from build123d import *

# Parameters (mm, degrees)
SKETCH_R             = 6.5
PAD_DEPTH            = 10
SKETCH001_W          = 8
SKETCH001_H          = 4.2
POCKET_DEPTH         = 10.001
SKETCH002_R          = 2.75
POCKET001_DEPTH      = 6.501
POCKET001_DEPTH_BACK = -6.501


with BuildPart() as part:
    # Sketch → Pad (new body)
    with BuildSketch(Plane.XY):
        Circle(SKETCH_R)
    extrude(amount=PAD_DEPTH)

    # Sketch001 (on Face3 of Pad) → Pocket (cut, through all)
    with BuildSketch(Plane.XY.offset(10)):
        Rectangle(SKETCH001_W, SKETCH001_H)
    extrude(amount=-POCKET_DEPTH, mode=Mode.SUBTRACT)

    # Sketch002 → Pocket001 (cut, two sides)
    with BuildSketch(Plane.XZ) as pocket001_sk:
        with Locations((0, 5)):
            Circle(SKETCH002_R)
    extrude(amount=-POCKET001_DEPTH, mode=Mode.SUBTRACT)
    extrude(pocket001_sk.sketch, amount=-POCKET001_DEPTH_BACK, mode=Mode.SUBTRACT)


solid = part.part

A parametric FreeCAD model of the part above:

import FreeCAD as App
import Part
import Sketcher
Q = App.Units.Quantity


def add_polygon(sketch, points):
    """Adds a closed chain of lines whose ends are joined by coincident constraints."""
    first, n = sketch.GeometryCount, len(points)
    for a, b in zip(points, points[1:] + points[:1]):
        sketch.addGeometry(Part.LineSegment(App.Vector(*a, 0), App.Vector(*b, 0)), False)
    for i in range(n):
        sketch.addConstraint(Sketcher.Constraint("Coincident", first + i, 2, first + (i + 1) % n, 1))

doc = App.newDocument("Part")
body = doc.addObject("PartDesign::Body", "Body")

# Sketch on XY plane
sketch1 = body.newObject("Sketcher::SketchObject", "Sketch")
sketch1.AttachmentSupport = (doc.getObject("XY_Plane"), [""])
sketch1.MapMode = "FlatFace"
sketch1.addGeometry(Part.Circle(App.Vector(0, 0, 0), App.Vector(0, 0, 1), 6.5), False)
sketch1.addConstraint([
    Sketcher.Constraint("Coincident", 0, 3, -1, 1),
    Sketcher.Constraint("Diameter", 0, Q("13 mm")),
])
pad1 = body.newObject("PartDesign::Pad", "Pad")
pad1.Profile = sketch1
pad1.Length = 10

# Sketch on XY plane
sketch2 = body.newObject("Sketcher::SketchObject", "Sketch001")
sketch2.AttachmentSupport = (doc.getObject("XY_Plane"), [""])
sketch2.MapMode = "FlatFace"
sketch2.AttachmentOffset = App.Placement(App.Vector(0, 0, 10), App.Rotation())
add_polygon(sketch2, [(-4, 2.1), (-4, -2.1), (4, -2.1), (4, 2.1)])  # lines 0-3
sketch2.addConstraint([
    Sketcher.Constraint("Vertical", 0),
    Sketcher.Constraint("Horizontal", 1),
    Sketcher.Constraint("Vertical", 2),
    Sketcher.Constraint("Horizontal", 3),
    Sketcher.Constraint("Symmetric", 0, 2, 2, 2, -1, 1),
    Sketcher.Constraint("DistanceX", 1, 1, 1, 2, Q("8 mm")),
    Sketcher.Constraint("DistanceY", 0, 2, 0, 1, Q("4.2 mm")),
])
pocket1 = body.newObject("PartDesign::Pocket", "Pocket")
pocket1.Profile = sketch2
pocket1.Type = "ThroughAll"

# Sketch on XZ plane
sketch3 = body.newObject("Sketcher::SketchObject", "Sketch002")
sketch3.AttachmentSupport = (doc.getObject("XZ_Plane"), [""])
sketch3.MapMode = "FlatFace"
sketch3.addGeometry(Part.Circle(App.Vector(0, 5, 0), App.Vector(0, 0, 1), 2.75), False)
sketch3.addConstraint([
    Sketcher.Constraint("PointOnObject", 0, 3, -2),
    Sketcher.Constraint("Diameter", 0, Q("5.5 mm")),
    Sketcher.Constraint("DistanceY", -1, 1, 0, 3, Q("5 mm")),
])
pocket2 = body.newObject("PartDesign::Pocket", "Pocket001")
pocket2.Profile = sketch3
pocket2.Type = "ThroughAll"
pocket2.Midplane = True

doc.recompute()
